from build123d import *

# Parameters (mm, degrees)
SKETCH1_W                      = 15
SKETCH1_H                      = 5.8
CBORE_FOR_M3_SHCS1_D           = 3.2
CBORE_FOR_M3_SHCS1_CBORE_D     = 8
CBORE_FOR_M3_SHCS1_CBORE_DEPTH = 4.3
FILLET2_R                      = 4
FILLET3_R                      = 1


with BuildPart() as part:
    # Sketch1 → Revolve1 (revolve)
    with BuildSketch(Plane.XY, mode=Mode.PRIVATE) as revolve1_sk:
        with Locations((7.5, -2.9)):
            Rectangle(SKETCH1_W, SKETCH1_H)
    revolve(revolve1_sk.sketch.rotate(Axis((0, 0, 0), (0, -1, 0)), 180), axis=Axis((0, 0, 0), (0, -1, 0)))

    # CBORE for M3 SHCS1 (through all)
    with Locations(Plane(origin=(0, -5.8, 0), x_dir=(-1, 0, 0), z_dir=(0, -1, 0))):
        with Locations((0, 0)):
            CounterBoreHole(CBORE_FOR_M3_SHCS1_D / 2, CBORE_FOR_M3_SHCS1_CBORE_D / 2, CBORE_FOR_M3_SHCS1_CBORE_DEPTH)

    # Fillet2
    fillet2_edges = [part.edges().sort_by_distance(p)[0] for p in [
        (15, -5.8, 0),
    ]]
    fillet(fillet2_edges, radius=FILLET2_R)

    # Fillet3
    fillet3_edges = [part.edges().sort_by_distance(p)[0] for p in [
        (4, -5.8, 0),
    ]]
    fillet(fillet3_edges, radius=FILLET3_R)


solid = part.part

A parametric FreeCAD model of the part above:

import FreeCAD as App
import Part
import Sketcher

V = App.Vector
Q = App.Units.Quantity


def edges_at(feature, points):
    """Names of the edges that pass closest to the given points."""
    edges = feature.Shape.Edges
    near = lambda p: min(range(len(edges)), key=lambda i: edges[i].distToShape(Part.Vertex(*p))[0])
    return sorted({f"Edge{near(p) + 1}" for p in points})

doc = App.newDocument("Part")
body = doc.addObject("PartDesign::Body", "Body")

# Sketch on XY plane
sketch1 = doc.addObject("Sketcher::SketchObject", "Sketch")
body.addObject(sketch1)
sketch1.AttachmentSupport = (doc.XY_Plane, [""])
sketch1.MapMode = "FlatFace"
sketch1.addGeometry([
    Part.LineSegment(V(0, 0, 0), V(0, -6, 0)),
    Part.LineSegment(V(0, -6, 0), V(15, -6, 0)),
    Part.LineSegment(V(15, -6, 0), V(15, 0, 0)),
    Part.LineSegment(V(15, 0, 0), V(0, 0, 0)),
], False)
sketch1.addConstraint([
    Sketcher.Constraint("Coincident", 0, 2, 1, 1),
    Sketcher.Constraint("Coincident", 1, 2, 2, 1),
    Sketcher.Constraint("Coincident", 2, 2, 3, 1),
    Sketcher.Constraint("Coincident", 3, 2, 0, 1),
    Sketcher.Constraint("Vertical", 0),
    Sketcher.Constraint("Horizontal", 1),
    Sketcher.Constraint("Vertical", 2),
    Sketcher.Constraint("Horizontal", 3),
    Sketcher.Constraint("Coincident", 3, 2, -1, 1),
    Sketcher.Constraint("DistanceX", 1, 1, 1, 2, Q("15 mm")),
    Sketcher.Constraint("DistanceY", 0, 2, 0, 1, Q("5.8 mm")),
])
revolution = doc.addObject("PartDesign::Revolution", "Revolution")
body.addObject(revolution)
revolution.Profile = sketch1
revolution.ReferenceAxis = (sketch1, ["V_Axis"])
revolution.Angle = 360

# Sketch on XZ plane
sketch2 = doc.addObject("Sketcher::SketchObject", "Sketch001")
body.addObject(sketch2)
sketch2.AttachmentSupport = (doc.XZ_Plane, [""])
sketch2.MapMode = "FlatFace"
sketch2.AttachmentOffset = App.Placement(V(0, 0, 5.8), App.Rotation())
sketch2.addGeometry(Part.Circle(V(0, 0, 0), V(0, 0, 1), 1.6), False)
sketch2.addConstraint([
    Sketcher.Constraint("Coincident", 0, 3, -1, 1),
    Sketcher.Constraint("Diameter", 0, Q("3.2 mm")),
])
doc.recompute()
hole = doc.addObject("PartDesign::Hole", "Hole")
body.addObject(hole)
hole.Profile = sketch2
hole.ThreadType = "None"
hole.Diameter = 3.2
hole.DepthType = "ThroughAll"
hole.HoleCutType = "Counterbore"
hole.HoleCutDiameter = 8
hole.HoleCutDepth = 4.3
doc.recompute()

fillet = doc.addObject("PartDesign::Fillet", "Fillet")
body.addObject(fillet)
fillet.Base = (hole, edges_at(hole, [(15, -5.8, 0)]))
fillet.Radius = 4
doc.recompute()

fillet2 = doc.addObject("PartDesign::Fillet", "Fillet001")
body.addObject(fillet2)
fillet2.Base = (fillet, edges_at(fillet, [(4, -5.8, 0)]))
fillet2.Radius = 1

doc.recompute()
